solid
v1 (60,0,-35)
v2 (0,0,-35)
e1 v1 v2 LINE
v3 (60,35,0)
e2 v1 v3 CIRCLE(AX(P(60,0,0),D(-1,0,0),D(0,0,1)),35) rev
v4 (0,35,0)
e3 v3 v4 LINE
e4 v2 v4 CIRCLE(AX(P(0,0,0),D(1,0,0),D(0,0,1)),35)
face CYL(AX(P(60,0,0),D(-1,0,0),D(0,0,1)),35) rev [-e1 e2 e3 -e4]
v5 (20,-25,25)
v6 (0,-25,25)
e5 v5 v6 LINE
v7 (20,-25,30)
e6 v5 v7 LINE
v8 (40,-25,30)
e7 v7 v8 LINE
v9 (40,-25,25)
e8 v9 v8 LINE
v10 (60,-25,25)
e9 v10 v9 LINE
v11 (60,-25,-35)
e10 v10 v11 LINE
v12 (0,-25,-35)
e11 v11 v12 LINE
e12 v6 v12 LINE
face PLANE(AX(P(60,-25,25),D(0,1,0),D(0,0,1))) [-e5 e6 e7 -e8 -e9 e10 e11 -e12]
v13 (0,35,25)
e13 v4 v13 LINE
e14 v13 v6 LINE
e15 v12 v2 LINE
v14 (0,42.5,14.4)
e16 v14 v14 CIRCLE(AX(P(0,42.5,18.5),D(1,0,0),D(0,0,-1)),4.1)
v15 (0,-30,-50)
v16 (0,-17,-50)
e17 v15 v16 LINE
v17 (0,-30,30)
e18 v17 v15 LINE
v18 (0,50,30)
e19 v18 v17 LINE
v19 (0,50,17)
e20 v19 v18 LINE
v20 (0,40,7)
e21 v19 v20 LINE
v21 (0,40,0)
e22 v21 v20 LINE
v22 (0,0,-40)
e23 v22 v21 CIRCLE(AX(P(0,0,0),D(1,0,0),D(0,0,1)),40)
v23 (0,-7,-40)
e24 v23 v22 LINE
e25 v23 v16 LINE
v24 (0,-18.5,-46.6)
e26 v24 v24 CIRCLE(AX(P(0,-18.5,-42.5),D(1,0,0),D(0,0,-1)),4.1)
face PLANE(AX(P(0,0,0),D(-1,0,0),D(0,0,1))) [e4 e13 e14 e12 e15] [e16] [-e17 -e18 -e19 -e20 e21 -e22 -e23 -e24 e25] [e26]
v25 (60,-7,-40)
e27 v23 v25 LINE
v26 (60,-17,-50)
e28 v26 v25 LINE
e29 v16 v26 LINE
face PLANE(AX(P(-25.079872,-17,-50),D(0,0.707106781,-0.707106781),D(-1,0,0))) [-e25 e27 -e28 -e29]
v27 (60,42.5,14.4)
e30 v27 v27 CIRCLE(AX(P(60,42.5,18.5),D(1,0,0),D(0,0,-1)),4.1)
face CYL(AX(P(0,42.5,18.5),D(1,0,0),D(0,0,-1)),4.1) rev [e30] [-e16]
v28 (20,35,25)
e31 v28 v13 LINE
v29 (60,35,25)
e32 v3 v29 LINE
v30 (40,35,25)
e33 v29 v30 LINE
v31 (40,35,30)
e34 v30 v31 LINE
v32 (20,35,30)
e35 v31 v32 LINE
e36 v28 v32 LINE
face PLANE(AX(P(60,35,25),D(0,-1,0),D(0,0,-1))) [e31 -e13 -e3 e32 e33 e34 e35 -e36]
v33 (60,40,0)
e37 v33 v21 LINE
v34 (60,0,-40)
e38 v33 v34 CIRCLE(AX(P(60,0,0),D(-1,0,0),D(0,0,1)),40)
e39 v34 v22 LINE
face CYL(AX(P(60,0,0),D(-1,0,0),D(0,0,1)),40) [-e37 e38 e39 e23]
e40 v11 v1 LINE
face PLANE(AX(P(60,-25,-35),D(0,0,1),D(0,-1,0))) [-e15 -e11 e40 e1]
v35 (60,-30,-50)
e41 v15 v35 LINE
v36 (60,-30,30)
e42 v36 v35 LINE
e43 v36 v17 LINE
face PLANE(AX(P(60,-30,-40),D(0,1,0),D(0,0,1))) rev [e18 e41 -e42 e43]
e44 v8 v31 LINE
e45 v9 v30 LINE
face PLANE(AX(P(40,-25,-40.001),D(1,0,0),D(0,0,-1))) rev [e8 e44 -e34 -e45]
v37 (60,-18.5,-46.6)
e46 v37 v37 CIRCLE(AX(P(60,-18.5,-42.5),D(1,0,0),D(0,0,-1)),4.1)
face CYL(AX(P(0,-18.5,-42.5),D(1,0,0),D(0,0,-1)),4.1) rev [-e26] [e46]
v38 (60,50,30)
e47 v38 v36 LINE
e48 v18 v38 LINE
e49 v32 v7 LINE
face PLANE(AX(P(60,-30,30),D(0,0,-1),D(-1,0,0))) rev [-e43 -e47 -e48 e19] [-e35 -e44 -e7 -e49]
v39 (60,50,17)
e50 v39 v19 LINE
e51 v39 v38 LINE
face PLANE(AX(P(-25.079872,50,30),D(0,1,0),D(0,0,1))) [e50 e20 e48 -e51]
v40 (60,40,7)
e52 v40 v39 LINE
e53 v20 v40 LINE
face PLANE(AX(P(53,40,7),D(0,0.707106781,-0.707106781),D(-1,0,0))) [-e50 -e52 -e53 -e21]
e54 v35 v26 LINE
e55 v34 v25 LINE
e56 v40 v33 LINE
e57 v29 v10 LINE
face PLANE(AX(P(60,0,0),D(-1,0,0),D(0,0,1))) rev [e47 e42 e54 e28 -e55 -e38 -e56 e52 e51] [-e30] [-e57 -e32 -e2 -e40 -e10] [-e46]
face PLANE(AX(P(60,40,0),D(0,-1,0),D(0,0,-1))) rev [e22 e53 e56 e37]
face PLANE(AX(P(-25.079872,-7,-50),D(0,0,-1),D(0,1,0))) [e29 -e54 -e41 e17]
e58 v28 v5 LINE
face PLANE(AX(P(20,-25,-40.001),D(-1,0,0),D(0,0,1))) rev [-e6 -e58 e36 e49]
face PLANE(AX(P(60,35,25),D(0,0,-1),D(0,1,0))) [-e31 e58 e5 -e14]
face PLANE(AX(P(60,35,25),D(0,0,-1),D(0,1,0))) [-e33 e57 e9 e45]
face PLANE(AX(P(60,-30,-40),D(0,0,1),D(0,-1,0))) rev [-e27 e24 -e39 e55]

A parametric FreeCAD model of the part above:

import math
import FreeCAD as App
import Part
import Sketcher

V = App.Vector


def edges_at(feature, points):
    """Names of the edges that pass closest to the given points."""
    edges = feature.Shape.Edges
    near = lambda p: min(range(len(edges)), key=lambda i: edges[i].distToShape(Part.Vertex(*p))[0])
    return sorted({f"Edge{near(p) + 1}" for p in points})


def add_polygon(sketch, points):
    """Adds a closed chain of lines whose ends are joined by coincident constraints."""
    first, n = sketch.GeometryCount, len(points)
    for a, b in zip(points, points[1:] + points[:1]):
        sketch.addGeometry(Part.LineSegment(App.Vector(*a, 0), App.Vector(*b, 0)), False)
    for i in range(n):
        sketch.addConstraint(Sketcher.Constraint("Coincident", first + i, 2, first + (i + 1) % n, 1))

doc = App.newDocument("Part")
body = doc.addObject("PartDesign::Body", "Body")

sketch1 = doc.addObject("Sketcher::SketchObject", "Sketch")
body.addObject(sketch1)
sketch1.AttachmentSupport = (doc.YZ_Plane, [""])
sketch1.MapMode = "FlatFace"
sketch1.addGeometry([
    Part.LineSegment(V(40, 0, 0), V(40, 30, 0)),
    Part.LineSegment(V(40, 30, 0), V(-30, 30, 0)),
    Part.LineSegment(V(-30, 30, 0), V(-30, -40, 0)),
    Part.LineSegment(V(-30, -40, 0), V(0, -40, 0)),
    Part.ArcOfCircle(Part.Circle(V(0, 0, 0), V(0, 0, 1), 40), math.radians(-90), math.radians(0)),
    Part.LineSegment(V(-25, 25, 0), V(35, 25, 0)),
    Part.LineSegment(V(35, 25, 0), V(35, 0, 0)),
    Part.ArcOfCircle(Part.Circle(V(0, 0, 0), V(0, 0, 1), 35), math.radians(-90), math.radians(0)),
    Part.LineSegment(V(0, -35, 0), V(-25, -35, 0)),
    Part.LineSegment(V(-25, -35, 0), V(-25, 25, 0)),
], False)
sketch1.addConstraint([
    Sketcher.Constraint("Coincident", 0, 2, 1, 1),
    Sketcher.Constraint("Coincident", 1, 2, 2, 1),
    Sketcher.Constraint("Coincident", 2, 2, 3, 1),
    Sketcher.Constraint("Tangent", 3, 2, 4, 1),
    Sketcher.Constraint("Tangent", 4, 2, 0, 1),
    Sketcher.Constraint("Coincident", 5, 2, 6, 1),
    Sketcher.Constraint("Tangent", 6, 2, 7, 2),
    Sketcher.Constraint("Tangent", 7, 1, 8, 1),
    Sketcher.Constraint("Coincident", 8, 2, 9, 1),
    Sketcher.Constraint("Coincident", 9, 2, 5, 1),
    Sketcher.Constraint("Vertical", 0),
    Sketcher.Constraint("Horizontal", 1),
    Sketcher.Constraint("Vertical", 2),
    Sketcher.Constraint("Horizontal", 3),
    Sketcher.Constraint("Horizontal", 5),
    Sketcher.Constraint("Vertical", 6),
    Sketcher.Constraint("Horizontal", 8),
    Sketcher.Constraint("Vertical", 9),
    Sketcher.Constraint("Coincident", 4, 3, -1, 1),
    Sketcher.Constraint("Coincident", 7, 3, -1, 1),
    Sketcher.Constraint("Equal", 3, 0),
    Sketcher.Constraint("Equal", 8, 6),
    Sketcher.Constraint("Radius", 4, 40.0),
    Sketcher.Constraint("Radius", 7, 35.0),
    Sketcher.Constraint("DistanceX", 1, 2, 1, 1, 70.0),
    Sketcher.Constraint("DistanceX", 5, 1, 5, 2, 60.0),
])
pad1 = doc.addObject("PartDesign::Pad", "Pad")
body.addObject(pad1)
pad1.Profile = sketch1
pad1.Length = 60

sketch2 = doc.addObject("Sketcher::SketchObject", "Sketch001")
body.addObject(sketch2)
sketch2.AttachmentSupport = (doc.YZ_Plane, [""])
sketch2.MapMode = "FlatFace"
sketch2.AttachmentOffset = App.Placement(V(0, 0, 60), App.Rotation())
sketch2.addGeometry([
    Part.LineSegment(V(40, 0, 0), V(40, 7, 0)),
    Part.LineSegment(V(40, 7, 0), V(35, 7, 0)),
    Part.LineSegment(V(35, 7, 0), V(35, 0, 0)),
    Part.ArcOfCircle(Part.Circle(V(0, 0, 0), V(0, 0, 1), 35), math.radians(-90), math.radians(0)),
    Part.LineSegment(V(0, -35, 0), V(-7, -35, 0)),
    Part.LineSegment(V(-7, -35, 0), V(-7, -40, 0)),
    Part.LineSegment(V(-7, -40, 0), V(0, -40, 0)),
    Part.ArcOfCircle(Part.Circle(V(0, 0, 0), V(0, 0, 1), 40), math.radians(-90), math.radians(0)),
], False)
sketch2.addConstraint([
    Sketcher.Constraint("Coincident", 0, 2, 1, 1),
    Sketcher.Constraint("Coincident", 1, 2, 2, 1),
    Sketcher.Constraint("Tangent", 2, 2, 3, 2),
    Sketcher.Constraint("Tangent", 3, 1, 4, 1),
    Sketcher.Constraint("Coincident", 4, 2, 5, 1),
    Sketcher.Constraint("Coincident", 5, 2, 6, 1),
    Sketcher.Constraint("Tangent", 6, 2, 7, 1),
    Sketcher.Constraint("Tangent", 7, 2, 0, 1),
    Sketcher.Constraint("Vertical", 0),
    Sketcher.Constraint("Horizontal", 1),
    Sketcher.Constraint("Vertical", 2),
    Sketcher.Constraint("Horizontal", 4),
    Sketcher.Constraint("Vertical", 5),
    Sketcher.Constraint("Horizontal", 6),
    Sketcher.Constraint("Coincident", 3, 3, -1, 1),
    Sketcher.Constraint("Coincident", 7, 3, -1, 1),
    Sketcher.Constraint("Equal", 6, 0),
    Sketcher.Constraint("Radius", 3, 35.0),
    Sketcher.Constraint("Radius", 7, 40.0),
    Sketcher.Constraint("DistanceX", 4, 2, 4, 1, 7.0),
])
pocket1 = doc.addObject("PartDesign::Pocket", "Pocket")
body.addObject(pocket1)
pocket1.Profile = sketch2
pocket1.Length = 7

sketch3 = doc.addObject("Sketcher::SketchObject", "Sketch002")
body.addObject(sketch3)
sketch3.AttachmentSupport = (doc.XY_Plane, [""])
sketch3.MapMode = "FlatFace"
sketch3.AttachmentOffset = App.Placement(V(0, 0, 30), App.Rotation())
add_polygon(sketch3, [(20, 35), (20, -25), (40, -25), (40, 35)])
sketch3.addConstraint([
    Sketcher.Constraint("Vertical", 0),
    Sketcher.Constraint("Horizontal", 1),
    Sketcher.Constraint("Vertical", 2),
    Sketcher.Constraint("Horizontal", 3),
    Sketcher.Constraint("DistanceX", 1, 1, 1, 2, 20.0),
    Sketcher.Constraint("DistanceY", 0, 2, 0, 1, 60.0),
    Sketcher.Constraint("DistanceX", -1, 1, 0, 2, 20.0),
    Sketcher.Constraint("DistanceY", 0, 2, -1, 1, 25.0),
])
pocket2 = doc.addObject("PartDesign::Pocket", "Pocket001")
body.addObject(pocket2)
pocket2.Profile = sketch3
pocket2.Type = "UpToFirst"

sketch4 = doc.addObject("Sketcher::SketchObject", "Sketch003")
body.addObject(sketch4)
sketch4.AttachmentSupport = (doc.YZ_Plane, [""])
sketch4.MapMode = "FlatFace"
sketch4.AttachmentOffset = App.Placement(V(0, 0, 60), App.Rotation())
add_polygon(sketch4, [(50, 30), (40, 30), (40, 7), (50, 7)])
add_polygon(sketch4, [(-7, -40), (-30, -40), (-30, -50), (-7, -50)])
sketch4.addConstraint([
    Sketcher.Constraint("Horizontal", 0),
    Sketcher.Constraint("Vertical", 1),
    Sketcher.Constraint("Horizontal", 2),
    Sketcher.Constraint("Vertical", 3),
    Sketcher.Constraint("Horizontal", 4),
    Sketcher.Constraint("Vertical", 5),
    Sketcher.Constraint("Horizontal", 6),
    Sketcher.Constraint("Vertical", 7),
    Sketcher.Constraint("Equal", 6, 1),
    Sketcher.Constraint("Equal", 2, 5),
    Sketcher.Constraint("DistanceX", 0, 2, 0, 1, 10.0),
    Sketcher.Constraint("DistanceX", 4, 2, 4, 1, 23.0),
    Sketcher.Constraint("DistanceX", -1, 1, 0, 2, 40.0),
    Sketcher.Constraint("DistanceY", -1, 1, 0, 2, 30.0),
    Sketcher.Constraint("DistanceX", 4, 2, -1, 1, 30.0),
    Sketcher.Constraint("DistanceY", 4, 2, -1, 1, 40.0),
])
pad2 = doc.addObject("PartDesign::Pad", "Pad001")
body.addObject(pad2)
pad2.Profile = sketch4
pad2.Length = 60
pad2.Reversed = True

sketch5 = doc.addObject("Sketcher::SketchObject", "Sketch004")
body.addObject(sketch5)
sketch5.AttachmentSupport = (doc.YZ_Plane, [""])
sketch5.MapMode = "FlatFace"
sketch5.AttachmentOffset = App.Placement(V(0, 0, 60), App.Rotation())
sketch5.addGeometry([
    Part.Circle(V(42.5, 18.5, 0), V(0, 0, 1), 4.1),
    Part.Circle(V(-18.5, -42.5, 0), V(0, 0, 1), 4.1),
], False)
sketch5.addConstraint([
    Sketcher.Constraint("Equal", 0, 1),
    Sketcher.Constraint("Diameter", 0, 8.2),
    Sketcher.Constraint("DistanceX", 1, 3, 0, 3, 61.0),
    Sketcher.Constraint("DistanceY", 1, 3, 0, 3, 61.0),
    Sketcher.Constraint("DistanceX", -1, 1, 0, 3, 42.5),
    Sketcher.Constraint("DistanceY", -1, 1, 0, 3, 18.5),
])
pocket3 = doc.addObject("PartDesign::Pocket", "Pocket002")
body.addObject(pocket3)
pocket3.Profile = sketch5
pocket3.Type = "ThroughAll"
doc.recompute()

chamfer = doc.addObject("PartDesign::Chamfer", "Chamfer")
body.addObject(chamfer)
chamfer.Base = (pocket3, edges_at(pocket3, [(30, -7, -50), (30, 50, 7)]))
chamfer.Size = 10

sketch6 = doc.addObject("Sketcher::SketchObject", "Sketch005")
body.addObject(sketch6)
sketch6.AttachmentSupport = (doc.YZ_Plane, [""])
sketch6.MapMode = "FlatFace"
sketch6.AttachmentOffset = App.Placement(V(0, 0, 53), App.Rotation())
sketch6.addGeometry([
    Part.LineSegment(V(40, 0, 0), V(40, 7, 0)),
    Part.LineSegment(V(40, 7, 0), V(35, 7, 0)),
    Part.LineSegment(V(35, 7, 0), V(35, 0, 0)),
    Part.ArcOfCircle(Part.Circle(V(0, 0, 0), V(0, 0, 1), 35), math.radians(-90), math.radians(0)),
    Part.LineSegment(V(0, -35, 0), V(-7, -35, 0)),
    Part.LineSegment(V(-7, -35, 0), V(-7, -40, 0)),
    Part.LineSegment(V(-7, -40, 0), V(0, -40, 0)),
    Part.ArcOfCircle(Part.Circle(V(0, 0, 0), V(0, 0, 1), 40), math.radians(-90), math.radians(0)),
], False)
sketch6.addConstraint([
    Sketcher.Constraint("Coincident", 0, 2, 1, 1),
    Sketcher.Constraint("Coincident", 1, 2, 2, 1),
    Sketcher.Constraint("Tangent", 2, 2, 3, 2),
    Sketcher.Constraint("Tangent", 3, 1, 4, 1),
    Sketcher.Constraint("Coincident", 4, 2, 5, 1),
    Sketcher.Constraint("Coincident", 5, 2, 6, 1),
    Sketcher.Constraint("Tangent", 6, 2, 7, 1),
    Sketcher.Constraint("Tangent", 7, 2, 0, 1),
    Sketcher.Constraint("Vertical", 0),
    Sketcher.Constraint("Horizontal", 1),
    Sketcher.Constraint("Vertical", 2),
    Sketcher.Constraint("Horizontal", 4),
    Sketcher.Constraint("Vertical", 5),
    Sketcher.Constraint("Horizontal", 6),
    Sketcher.Constraint("Coincident", 3, 3, -1, 1),
    Sketcher.Constraint("Coincident", 7, 3, -1, 1),
    Sketcher.Constraint("Equal", 6, 0),
    Sketcher.Constraint("Radius", 3, 35.0),
    Sketcher.Constraint("Radius", 7, 40.0),
    Sketcher.Constraint("DistanceX", 4, 2, 4, 1, 7.0),
])
pad3 = doc.addObject("PartDesign::Pad", "Pad002")
body.addObject(pad3)
pad3.Profile = sketch6
pad3.Length = 7

doc.recompute()
